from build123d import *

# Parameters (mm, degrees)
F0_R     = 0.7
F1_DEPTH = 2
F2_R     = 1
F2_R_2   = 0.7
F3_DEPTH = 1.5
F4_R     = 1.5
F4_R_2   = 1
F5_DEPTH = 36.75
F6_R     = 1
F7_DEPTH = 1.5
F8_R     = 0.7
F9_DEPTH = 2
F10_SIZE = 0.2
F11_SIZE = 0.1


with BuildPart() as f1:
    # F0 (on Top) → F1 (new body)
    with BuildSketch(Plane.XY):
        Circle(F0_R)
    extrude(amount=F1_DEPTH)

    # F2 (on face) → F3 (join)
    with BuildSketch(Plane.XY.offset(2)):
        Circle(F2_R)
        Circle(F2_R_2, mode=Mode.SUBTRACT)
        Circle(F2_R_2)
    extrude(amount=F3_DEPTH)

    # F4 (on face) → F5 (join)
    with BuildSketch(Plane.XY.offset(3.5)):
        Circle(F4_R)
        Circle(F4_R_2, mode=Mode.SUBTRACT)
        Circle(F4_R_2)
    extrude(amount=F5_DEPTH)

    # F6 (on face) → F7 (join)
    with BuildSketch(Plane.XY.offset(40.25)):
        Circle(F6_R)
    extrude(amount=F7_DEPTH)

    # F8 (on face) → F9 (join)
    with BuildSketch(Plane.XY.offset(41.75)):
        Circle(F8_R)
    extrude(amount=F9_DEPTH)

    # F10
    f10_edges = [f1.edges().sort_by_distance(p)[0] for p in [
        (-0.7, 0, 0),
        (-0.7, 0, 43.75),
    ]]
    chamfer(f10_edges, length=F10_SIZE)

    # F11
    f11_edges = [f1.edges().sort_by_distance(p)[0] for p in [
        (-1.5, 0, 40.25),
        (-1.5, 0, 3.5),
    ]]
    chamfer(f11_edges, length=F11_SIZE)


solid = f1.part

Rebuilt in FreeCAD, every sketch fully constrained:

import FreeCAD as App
import Part
import Sketcher
Q = App.Units.Quantity


def edges_at(feature, points):
    """Names of the edges that pass closest to the given points."""
    edges = feature.Shape.Edges
    near = lambda p: min(range(len(edges)), key=lambda i: edges[i].distToShape(Part.Vertex(*p))[0])
    return sorted({f"Edge{near(p) + 1}" for p in points})

doc = App.newDocument("Part")
body = doc.addObject("PartDesign::Body", "Body")

# Sketch on XY plane
sketch1 = body.newObject("Sketcher::SketchObject", "Sketch")
sketch1.AttachmentSupport = (doc.getObject("XY_Plane"), [""])
sketch1.MapMode = "FlatFace"
sketch1.addGeometry(Part.Circle(App.Vector(0, 0, 0), App.Vector(0, 0, 1), 0.7), False)
sketch1.addConstraint([
    Sketcher.Constraint("Coincident", 0, 3, -1, 1),
    Sketcher.Constraint("Diameter", 0, Q("1.4 mm")),
])
pad1 = body.newObject("PartDesign::Pad", "Pad")
pad1.Profile = sketch1
pad1.Length = 2

# Sketch on XY plane
sketch2 = body.newObject("Sketcher::SketchObject", "Sketch001")
sketch2.AttachmentSupport = (doc.getObject("XY_Plane"), [""])
sketch2.MapMode = "FlatFace"
sketch2.AttachmentOffset = App.Placement(App.Vector(0, 0, 2), App.Rotation())
sketch2.addGeometry(Part.Circle(App.Vector(0, 0, 0), App.Vector(0, 0, 1), 1), False)
sketch2.addConstraint([
    Sketcher.Constraint("Coincident", 0, 3, -1, 1),
    Sketcher.Constraint("Diameter", 0, Q("2 mm")),
])
pad2 = body.newObject("PartDesign::Pad", "Pad001")
pad2.Profile = sketch2
pad2.Length = 1.5

# Sketch on XY plane
sketch3 = body.newObject("Sketcher::SketchObject", "Sketch002")
sketch3.AttachmentSupport = (doc.getObject("XY_Plane"), [""])
sketch3.MapMode = "FlatFace"
sketch3.AttachmentOffset = App.Placement(App.Vector(0, 0, 3.5), App.Rotation())
sketch3.addGeometry(Part.Circle(App.Vector(0, 0, 0), App.Vector(0, 0, 1), 1.5), False)
sketch3.addConstraint([
    Sketcher.Constraint("Coincident", 0, 3, -1, 1),
    Sketcher.Constraint("Diameter", 0, Q("3 mm")),
])
pad3 = body.newObject("PartDesign::Pad", "Pad002")
pad3.Profile = sketch3
pad3.Length = 36.75

# Sketch on XY plane
sketch4 = body.newObject("Sketcher::SketchObject", "Sketch003")
sketch4.AttachmentSupport = (doc.getObject("XY_Plane"), [""])
sketch4.MapMode = "FlatFace"
sketch4.AttachmentOffset = App.Placement(App.Vector(0, 0, 40.25), App.Rotation())
sketch4.addGeometry(Part.Circle(App.Vector(0, 0, 0), App.Vector(0, 0, 1), 1), False)
sketch4.addConstraint([
    Sketcher.Constraint("Coincident", 0, 3, -1, 1),
    Sketcher.Constraint("Diameter", 0, Q("2 mm")),
])
pad4 = body.newObject("PartDesign::Pad", "Pad003")
pad4.Profile = sketch4
pad4.Length = 1.5

# Sketch on XY plane
sketch5 = body.newObject("Sketcher::SketchObject", "Sketch004")
sketch5.AttachmentSupport = (doc.getObject("XY_Plane"), [""])
sketch5.MapMode = "FlatFace"
sketch5.AttachmentOffset = App.Placement(App.Vector(0, 0, 41.75), App.Rotation())
sketch5.addGeometry(Part.Circle(App.Vector(0, 0, 0), App.Vector(0, 0, 1), 0.7), False)
sketch5.addConstraint([
    Sketcher.Constraint("Coincident", 0, 3, -1, 1),
    Sketcher.Constraint("Diameter", 0, Q("1.4 mm")),
])
pad5 = body.newObject("PartDesign::Pad", "Pad004")
pad5.Profile = sketch5
pad5.Length = 2
doc.recompute()

chamfer = body.newObject("PartDesign::Chamfer", "Chamfer")
chamfer.Base = (pad5, edges_at(pad5, [(-0.7, 0, 0), (-0.7, 0, 43.75)]))
chamfer.Size = 0.2
doc.recompute()

chamfer2 = body.newObject("PartDesign::Chamfer", "Chamfer001")
chamfer2.Base = (chamfer, edges_at(chamfer, [(-1.5, 0, 40.25), (-1.5, 0, 3.5)]))
chamfer2.Size = 0.1

doc.recompute()
